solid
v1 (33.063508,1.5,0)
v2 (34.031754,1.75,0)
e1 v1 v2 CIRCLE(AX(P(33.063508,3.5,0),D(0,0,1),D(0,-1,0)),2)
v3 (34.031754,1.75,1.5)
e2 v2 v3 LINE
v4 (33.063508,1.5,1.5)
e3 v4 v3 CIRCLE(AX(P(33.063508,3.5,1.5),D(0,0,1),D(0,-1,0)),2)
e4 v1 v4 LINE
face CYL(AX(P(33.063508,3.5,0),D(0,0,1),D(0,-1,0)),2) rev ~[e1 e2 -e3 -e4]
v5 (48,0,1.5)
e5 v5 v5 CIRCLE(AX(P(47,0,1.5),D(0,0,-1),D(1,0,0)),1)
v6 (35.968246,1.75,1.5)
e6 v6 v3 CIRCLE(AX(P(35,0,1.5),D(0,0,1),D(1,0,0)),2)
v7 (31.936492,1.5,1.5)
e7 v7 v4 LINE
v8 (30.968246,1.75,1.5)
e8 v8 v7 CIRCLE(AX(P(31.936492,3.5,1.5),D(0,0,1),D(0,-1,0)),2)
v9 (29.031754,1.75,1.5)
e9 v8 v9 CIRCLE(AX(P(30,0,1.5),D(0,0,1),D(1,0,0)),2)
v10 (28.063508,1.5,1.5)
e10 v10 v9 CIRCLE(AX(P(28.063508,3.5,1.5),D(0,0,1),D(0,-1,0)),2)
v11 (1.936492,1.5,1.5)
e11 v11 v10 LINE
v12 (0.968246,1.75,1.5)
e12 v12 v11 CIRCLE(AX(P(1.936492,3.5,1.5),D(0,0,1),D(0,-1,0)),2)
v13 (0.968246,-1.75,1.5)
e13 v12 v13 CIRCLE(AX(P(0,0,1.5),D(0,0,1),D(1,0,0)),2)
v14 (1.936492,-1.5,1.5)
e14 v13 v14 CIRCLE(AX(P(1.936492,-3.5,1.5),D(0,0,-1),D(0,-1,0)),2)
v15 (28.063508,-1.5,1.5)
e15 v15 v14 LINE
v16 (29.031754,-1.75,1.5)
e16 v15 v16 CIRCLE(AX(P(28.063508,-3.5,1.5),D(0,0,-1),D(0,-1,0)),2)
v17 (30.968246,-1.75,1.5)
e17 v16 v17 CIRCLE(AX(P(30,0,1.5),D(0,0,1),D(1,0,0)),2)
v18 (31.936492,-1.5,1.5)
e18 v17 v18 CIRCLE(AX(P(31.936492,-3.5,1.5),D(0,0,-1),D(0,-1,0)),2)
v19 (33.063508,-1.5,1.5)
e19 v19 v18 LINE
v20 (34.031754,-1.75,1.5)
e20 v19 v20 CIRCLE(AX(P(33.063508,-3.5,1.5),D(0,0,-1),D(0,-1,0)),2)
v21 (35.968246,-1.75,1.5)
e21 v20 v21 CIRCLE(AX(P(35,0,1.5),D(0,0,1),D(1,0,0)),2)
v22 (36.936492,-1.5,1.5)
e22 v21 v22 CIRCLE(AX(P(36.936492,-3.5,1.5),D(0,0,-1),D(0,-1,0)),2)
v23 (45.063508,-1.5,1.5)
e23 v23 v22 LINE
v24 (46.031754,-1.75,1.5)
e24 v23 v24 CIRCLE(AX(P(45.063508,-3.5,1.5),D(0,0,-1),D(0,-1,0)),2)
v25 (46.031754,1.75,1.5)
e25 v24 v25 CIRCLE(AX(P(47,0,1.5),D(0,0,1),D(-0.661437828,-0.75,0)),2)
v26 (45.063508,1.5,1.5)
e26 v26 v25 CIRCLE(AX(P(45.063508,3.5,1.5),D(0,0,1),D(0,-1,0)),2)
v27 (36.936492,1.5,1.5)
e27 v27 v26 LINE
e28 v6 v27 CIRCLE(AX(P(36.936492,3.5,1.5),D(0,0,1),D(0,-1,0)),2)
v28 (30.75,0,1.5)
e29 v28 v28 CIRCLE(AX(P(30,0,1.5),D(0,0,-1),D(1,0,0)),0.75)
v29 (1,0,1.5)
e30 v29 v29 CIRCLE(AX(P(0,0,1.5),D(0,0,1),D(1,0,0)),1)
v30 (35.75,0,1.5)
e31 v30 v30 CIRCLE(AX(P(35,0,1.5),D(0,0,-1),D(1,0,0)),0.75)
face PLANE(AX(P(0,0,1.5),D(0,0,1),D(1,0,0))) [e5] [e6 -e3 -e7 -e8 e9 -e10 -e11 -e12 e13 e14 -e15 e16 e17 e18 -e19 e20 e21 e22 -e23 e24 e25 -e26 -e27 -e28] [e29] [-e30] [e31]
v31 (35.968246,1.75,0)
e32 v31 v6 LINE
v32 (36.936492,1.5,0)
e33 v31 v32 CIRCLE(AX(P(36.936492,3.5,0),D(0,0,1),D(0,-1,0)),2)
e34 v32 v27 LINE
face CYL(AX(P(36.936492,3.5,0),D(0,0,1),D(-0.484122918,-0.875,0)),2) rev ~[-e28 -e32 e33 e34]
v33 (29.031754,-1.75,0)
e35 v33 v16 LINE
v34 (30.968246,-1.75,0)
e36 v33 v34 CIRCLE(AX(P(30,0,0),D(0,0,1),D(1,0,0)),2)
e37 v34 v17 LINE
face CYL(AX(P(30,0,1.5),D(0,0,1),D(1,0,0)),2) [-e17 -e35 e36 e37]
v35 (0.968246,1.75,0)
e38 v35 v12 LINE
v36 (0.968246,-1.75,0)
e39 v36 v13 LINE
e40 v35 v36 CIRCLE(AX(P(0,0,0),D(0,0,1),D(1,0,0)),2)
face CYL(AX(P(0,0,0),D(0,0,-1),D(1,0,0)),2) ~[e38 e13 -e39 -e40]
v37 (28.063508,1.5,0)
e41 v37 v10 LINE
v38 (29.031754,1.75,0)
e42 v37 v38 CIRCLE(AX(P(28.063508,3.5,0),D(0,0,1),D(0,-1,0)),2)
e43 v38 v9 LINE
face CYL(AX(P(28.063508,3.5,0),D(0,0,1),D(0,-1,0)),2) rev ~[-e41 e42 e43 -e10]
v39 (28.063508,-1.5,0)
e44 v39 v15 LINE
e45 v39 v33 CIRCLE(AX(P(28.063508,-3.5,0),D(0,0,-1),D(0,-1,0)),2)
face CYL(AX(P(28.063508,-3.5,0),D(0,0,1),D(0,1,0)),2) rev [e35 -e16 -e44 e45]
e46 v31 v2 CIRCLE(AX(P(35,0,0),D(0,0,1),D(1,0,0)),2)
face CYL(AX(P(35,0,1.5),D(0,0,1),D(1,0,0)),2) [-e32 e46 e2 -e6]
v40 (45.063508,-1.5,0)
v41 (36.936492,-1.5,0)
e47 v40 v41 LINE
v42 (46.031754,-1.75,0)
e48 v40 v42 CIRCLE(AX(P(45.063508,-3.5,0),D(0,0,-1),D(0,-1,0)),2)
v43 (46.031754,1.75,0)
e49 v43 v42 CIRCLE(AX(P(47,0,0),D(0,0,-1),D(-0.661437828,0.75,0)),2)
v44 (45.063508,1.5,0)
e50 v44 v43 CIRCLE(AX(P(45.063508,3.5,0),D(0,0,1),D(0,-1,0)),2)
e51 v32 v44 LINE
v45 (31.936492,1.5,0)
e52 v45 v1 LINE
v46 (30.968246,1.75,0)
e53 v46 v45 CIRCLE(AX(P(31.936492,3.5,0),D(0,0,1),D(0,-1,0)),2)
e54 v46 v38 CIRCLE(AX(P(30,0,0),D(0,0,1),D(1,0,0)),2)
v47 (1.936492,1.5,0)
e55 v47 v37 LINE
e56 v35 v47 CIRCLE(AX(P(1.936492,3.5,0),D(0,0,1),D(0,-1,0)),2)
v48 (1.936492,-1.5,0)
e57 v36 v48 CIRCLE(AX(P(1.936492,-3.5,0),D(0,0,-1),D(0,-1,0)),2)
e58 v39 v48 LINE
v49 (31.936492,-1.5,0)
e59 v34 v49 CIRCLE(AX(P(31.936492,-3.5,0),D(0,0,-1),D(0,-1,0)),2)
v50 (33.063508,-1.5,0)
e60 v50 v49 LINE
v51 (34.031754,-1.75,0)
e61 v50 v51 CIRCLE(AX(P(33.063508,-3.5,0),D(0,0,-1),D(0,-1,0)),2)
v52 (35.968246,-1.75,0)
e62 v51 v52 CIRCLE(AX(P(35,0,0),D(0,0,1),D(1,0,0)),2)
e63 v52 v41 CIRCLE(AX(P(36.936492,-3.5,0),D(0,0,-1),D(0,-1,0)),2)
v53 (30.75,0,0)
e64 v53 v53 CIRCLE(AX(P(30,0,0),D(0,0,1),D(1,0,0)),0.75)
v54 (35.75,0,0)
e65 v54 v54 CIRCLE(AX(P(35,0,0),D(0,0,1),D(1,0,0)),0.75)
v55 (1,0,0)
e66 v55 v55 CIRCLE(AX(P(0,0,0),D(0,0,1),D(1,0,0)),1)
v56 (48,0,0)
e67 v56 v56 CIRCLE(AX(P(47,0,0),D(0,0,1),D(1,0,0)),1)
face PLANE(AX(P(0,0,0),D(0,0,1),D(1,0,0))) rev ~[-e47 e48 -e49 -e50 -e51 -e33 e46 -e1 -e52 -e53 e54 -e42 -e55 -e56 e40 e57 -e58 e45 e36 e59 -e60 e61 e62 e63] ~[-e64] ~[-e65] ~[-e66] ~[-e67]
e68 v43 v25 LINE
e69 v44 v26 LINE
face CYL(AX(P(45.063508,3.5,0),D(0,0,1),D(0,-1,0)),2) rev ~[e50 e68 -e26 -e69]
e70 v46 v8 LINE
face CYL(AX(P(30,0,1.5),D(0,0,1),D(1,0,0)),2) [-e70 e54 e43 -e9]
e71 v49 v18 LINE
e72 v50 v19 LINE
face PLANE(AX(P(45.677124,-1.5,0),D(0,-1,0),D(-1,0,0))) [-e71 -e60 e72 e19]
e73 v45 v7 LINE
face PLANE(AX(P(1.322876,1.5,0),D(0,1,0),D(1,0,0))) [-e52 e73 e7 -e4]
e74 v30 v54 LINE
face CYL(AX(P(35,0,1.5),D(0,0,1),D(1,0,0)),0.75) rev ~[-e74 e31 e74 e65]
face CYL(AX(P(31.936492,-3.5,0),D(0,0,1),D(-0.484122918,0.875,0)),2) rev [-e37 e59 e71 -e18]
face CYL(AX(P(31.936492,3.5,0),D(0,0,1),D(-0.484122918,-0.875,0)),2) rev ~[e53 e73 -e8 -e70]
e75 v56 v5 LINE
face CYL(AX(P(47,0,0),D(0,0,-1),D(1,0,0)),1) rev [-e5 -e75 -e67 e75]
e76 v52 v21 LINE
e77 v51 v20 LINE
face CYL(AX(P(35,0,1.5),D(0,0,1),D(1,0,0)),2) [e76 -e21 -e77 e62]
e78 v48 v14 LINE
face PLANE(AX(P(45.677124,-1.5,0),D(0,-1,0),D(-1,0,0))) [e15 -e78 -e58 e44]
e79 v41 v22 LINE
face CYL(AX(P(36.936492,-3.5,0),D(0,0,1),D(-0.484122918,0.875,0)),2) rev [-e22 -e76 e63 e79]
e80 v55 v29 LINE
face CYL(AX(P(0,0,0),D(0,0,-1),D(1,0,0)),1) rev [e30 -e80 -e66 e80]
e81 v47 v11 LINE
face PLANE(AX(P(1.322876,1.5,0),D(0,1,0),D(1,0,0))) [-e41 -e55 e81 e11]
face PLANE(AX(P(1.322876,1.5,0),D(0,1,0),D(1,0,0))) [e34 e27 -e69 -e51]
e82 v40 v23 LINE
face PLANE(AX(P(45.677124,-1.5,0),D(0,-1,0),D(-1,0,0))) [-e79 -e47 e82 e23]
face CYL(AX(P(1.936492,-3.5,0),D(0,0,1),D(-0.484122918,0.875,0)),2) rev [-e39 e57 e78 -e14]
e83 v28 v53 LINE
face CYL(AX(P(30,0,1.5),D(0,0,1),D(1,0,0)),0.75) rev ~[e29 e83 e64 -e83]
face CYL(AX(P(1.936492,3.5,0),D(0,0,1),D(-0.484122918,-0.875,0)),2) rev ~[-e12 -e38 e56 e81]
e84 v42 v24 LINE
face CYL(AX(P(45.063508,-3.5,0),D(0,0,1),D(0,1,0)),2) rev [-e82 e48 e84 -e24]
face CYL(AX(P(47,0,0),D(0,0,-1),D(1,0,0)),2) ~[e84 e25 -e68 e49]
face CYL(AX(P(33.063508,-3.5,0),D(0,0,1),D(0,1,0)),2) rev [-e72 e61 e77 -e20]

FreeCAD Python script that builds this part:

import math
import FreeCAD as App
import Part
import Sketcher


def edges_at(feature, points):
    """Names of the edges that pass closest to the given points."""
    edges = feature.Shape.Edges
    near = lambda p: min(range(len(edges)), key=lambda i: edges[i].distToShape(Part.Vertex(*p))[0])
    return sorted({f"Edge{near(p) + 1}" for p in points})

doc = App.newDocument("Part")
body = doc.addObject("PartDesign::Body", "Body")

# Sketch on XY plane
sketch1 = body.newObject("Sketcher::SketchObject", "Sketch")
sketch1.AttachmentSupport = (doc.getObject("XY_Plane"), [""])
sketch1.MapMode = "FlatFace"
sketch1.addGeometry(Part.ArcOfCircle(Part.Circle(App.Vector(0, 0, 0), App.Vector(0, 0, 1), 2), math.radians(48.590378), math.radians(311.409622)), False)
sketch1.addGeometry(Part.LineSegment(App.Vector(1.322876, -1.5, 0), App.Vector(45.677124, -1.5, 0)), False)
sketch1.addGeometry(Part.ArcOfCircle(Part.Circle(App.Vector(47, 0, 0), App.Vector(0, 0, 1), 2), math.radians(-131.409622), math.radians(131.409622)), False)
sketch1.addGeometry(Part.LineSegment(App.Vector(45.677124, 1.5, 0), App.Vector(1.322876, 1.5, 0)), False)
sketch1.addGeometry(Part.Circle(App.Vector(0, 0, 0), App.Vector(0, 0, 1), 1), False)
sketch1.addGeometry(Part.Circle(App.Vector(47, 0, 0), App.Vector(0, 0, 1), 1), False)
sketch1.addConstraint(Sketcher.Constraint("Coincident", 0, 2, 1, 1))
sketch1.addConstraint(Sketcher.Constraint("Coincident", 1, 2, 2, 1))
sketch1.addConstraint(Sketcher.Constraint("Coincident", 2, 2, 3, 1))
sketch1.addConstraint(Sketcher.Constraint("Coincident", 3, 2, 0, 1))
sketch1.addConstraint(Sketcher.Constraint("Horizontal", 1))
sketch1.addConstraint(Sketcher.Constraint("Horizontal", 3))
sketch1.addConstraint(Sketcher.Constraint("Coincident", 0, 3, -1, 1))
sketch1.addConstraint(Sketcher.Constraint("Coincident", 4, 3, -1, 1))
sketch1.addConstraint(Sketcher.Constraint("Coincident", 5, 3, 2, 3))
sketch1.addConstraint(Sketcher.Constraint("Equal", 0, 2))
sketch1.addConstraint(Sketcher.Constraint("Equal", 4, 5))
sketch1.addConstraint(Sketcher.Constraint("Symmetric", 1, 2, 2, 2, -1))
sketch1.addConstraint(Sketcher.Constraint("Diameter", 4, 2.0))
sketch1.addConstraint(Sketcher.Constraint("Radius", 0, 2.0))
sketch1.addConstraint(Sketcher.Constraint("DistanceX", -1, 1, 2, 3, 47.0))
sketch1.addConstraint(Sketcher.Constraint("DistanceY", 1, 2, 2, 2, 3.0))
pad1 = body.newObject("PartDesign::Pad", "Pad")
pad1.Profile = sketch1
pad1.Length = 1.5
doc.recompute()

fillet = body.newObject("PartDesign::Fillet", "Fillet")
fillet.Base = (pad1, edges_at(pad1, [
    (1.323, 1.5, 0.75),
    (45.677, 1.5, 0.75),
    (45.677, -1.5, 0.75),
    (1.323, -1.5, 0.75),
]))
fillet.Radius = 2

# Sketch on XY plane
sketch2 = body.newObject("Sketcher::SketchObject", "Sketch001")
sketch2.AttachmentSupport = (doc.getObject("XY_Plane"), [""])
sketch2.MapMode = "FlatFace"
sketch2.AttachmentOffset = App.Placement(App.Vector(0, 0, 1.5), App.Rotation())
sketch2.addGeometry(Part.Circle(App.Vector(30, 0, 0), App.Vector(0, 0, 1), 0.75), False)
sketch2.addGeometry(Part.Circle(App.Vector(35, 0, 0), App.Vector(0, 0, 1), 0.75), False)
sketch2.addConstraint(Sketcher.Constraint("Equal", 0, 1))
sketch2.addConstraint(Sketcher.Constraint("PointOnObject", 0, 3, -1))
sketch2.addConstraint(Sketcher.Constraint("PointOnObject", 1, 3, -1))
sketch2.addConstraint(Sketcher.Constraint("Diameter", 0, 1.5))
sketch2.addConstraint(Sketcher.Constraint("DistanceX", 0, 3, 1, 3, 5.0))
sketch2.addConstraint(Sketcher.Constraint("DistanceX", -1, 1, 0, 3, 30.0))
pocket1 = body.newObject("PartDesign::Pocket", "Pocket")
pocket1.Profile = sketch2
pocket1.Type = "ThroughAll"

# Sketch on XY plane
sketch3 = body.newObject("Sketcher::SketchObject", "Sketch002")
sketch3.AttachmentSupport = (doc.getObject("XY_Plane"), [""])
sketch3.MapMode = "FlatFace"
sketch3.AttachmentOffset = App.Placement(App.Vector(0, 0, 1.5), App.Rotation())
sketch3.addGeometry(Part.Circle(App.Vector(30, 0, 0), App.Vector(0, 0, 1), 2), False)
sketch3.addGeometry(Part.Circle(App.Vector(30, 0, 0), App.Vector(0, 0, 1), 0.75), False)
sketch3.addGeometry(Part.Circle(App.Vector(35, 0, 0), App.Vector(0, 0, 1), 2), False)
sketch3.addGeometry(Part.Circle(App.Vector(35, 0, 0), App.Vector(0, 0, 1), 0.75), False)
sketch3.addConstraint(Sketcher.Constraint("Coincident", 1, 3, 0, 3))
sketch3.addConstraint(Sketcher.Constraint("Coincident", 3, 3, 2, 3))
sketch3.addConstraint(Sketcher.Constraint("Equal", 0, 2))
sketch3.addConstraint(Sketcher.Constraint("Equal", 1, 3))
sketch3.addConstraint(Sketcher.Constraint("PointOnObject", 0, 3, -1))
sketch3.addConstraint(Sketcher.Constraint("PointOnObject", 2, 3, -1))
sketch3.addConstraint(Sketcher.Constraint("Diameter", 0, 4.0))
sketch3.addConstraint(Sketcher.Constraint("Diameter", 1, 1.5))
sketch3.addConstraint(Sketcher.Constraint("DistanceX", -1, 1, 0, 3, 30.0))
sketch3.addConstraint(Sketcher.Constraint("DistanceX", -1, 1, 2, 3, 35.0))
pad2 = body.newObject("PartDesign::Pad", "Pad001")
pad2.Profile = sketch3
pad2.Length = 1.5
pad2.Reversed = True
doc.recompute()

fillet2 = body.newObject("PartDesign::Fillet", "Fillet001")
fillet2.Base = (pad2, edges_at(pad2, [
    (28.677, 1.5, 0.75),
    (31.323, 1.5, 0.75),
    (33.677, 1.5, 0.75),
    (36.323, 1.5, 0.75),
    (33.677, -1.5, 0.75),
    (36.323, -1.5, 0.75),
    (28.677, -1.5, 0.75),
    (31.323, -1.5, 0.75),
]))
fillet2.Radius = 2

doc.recompute()
